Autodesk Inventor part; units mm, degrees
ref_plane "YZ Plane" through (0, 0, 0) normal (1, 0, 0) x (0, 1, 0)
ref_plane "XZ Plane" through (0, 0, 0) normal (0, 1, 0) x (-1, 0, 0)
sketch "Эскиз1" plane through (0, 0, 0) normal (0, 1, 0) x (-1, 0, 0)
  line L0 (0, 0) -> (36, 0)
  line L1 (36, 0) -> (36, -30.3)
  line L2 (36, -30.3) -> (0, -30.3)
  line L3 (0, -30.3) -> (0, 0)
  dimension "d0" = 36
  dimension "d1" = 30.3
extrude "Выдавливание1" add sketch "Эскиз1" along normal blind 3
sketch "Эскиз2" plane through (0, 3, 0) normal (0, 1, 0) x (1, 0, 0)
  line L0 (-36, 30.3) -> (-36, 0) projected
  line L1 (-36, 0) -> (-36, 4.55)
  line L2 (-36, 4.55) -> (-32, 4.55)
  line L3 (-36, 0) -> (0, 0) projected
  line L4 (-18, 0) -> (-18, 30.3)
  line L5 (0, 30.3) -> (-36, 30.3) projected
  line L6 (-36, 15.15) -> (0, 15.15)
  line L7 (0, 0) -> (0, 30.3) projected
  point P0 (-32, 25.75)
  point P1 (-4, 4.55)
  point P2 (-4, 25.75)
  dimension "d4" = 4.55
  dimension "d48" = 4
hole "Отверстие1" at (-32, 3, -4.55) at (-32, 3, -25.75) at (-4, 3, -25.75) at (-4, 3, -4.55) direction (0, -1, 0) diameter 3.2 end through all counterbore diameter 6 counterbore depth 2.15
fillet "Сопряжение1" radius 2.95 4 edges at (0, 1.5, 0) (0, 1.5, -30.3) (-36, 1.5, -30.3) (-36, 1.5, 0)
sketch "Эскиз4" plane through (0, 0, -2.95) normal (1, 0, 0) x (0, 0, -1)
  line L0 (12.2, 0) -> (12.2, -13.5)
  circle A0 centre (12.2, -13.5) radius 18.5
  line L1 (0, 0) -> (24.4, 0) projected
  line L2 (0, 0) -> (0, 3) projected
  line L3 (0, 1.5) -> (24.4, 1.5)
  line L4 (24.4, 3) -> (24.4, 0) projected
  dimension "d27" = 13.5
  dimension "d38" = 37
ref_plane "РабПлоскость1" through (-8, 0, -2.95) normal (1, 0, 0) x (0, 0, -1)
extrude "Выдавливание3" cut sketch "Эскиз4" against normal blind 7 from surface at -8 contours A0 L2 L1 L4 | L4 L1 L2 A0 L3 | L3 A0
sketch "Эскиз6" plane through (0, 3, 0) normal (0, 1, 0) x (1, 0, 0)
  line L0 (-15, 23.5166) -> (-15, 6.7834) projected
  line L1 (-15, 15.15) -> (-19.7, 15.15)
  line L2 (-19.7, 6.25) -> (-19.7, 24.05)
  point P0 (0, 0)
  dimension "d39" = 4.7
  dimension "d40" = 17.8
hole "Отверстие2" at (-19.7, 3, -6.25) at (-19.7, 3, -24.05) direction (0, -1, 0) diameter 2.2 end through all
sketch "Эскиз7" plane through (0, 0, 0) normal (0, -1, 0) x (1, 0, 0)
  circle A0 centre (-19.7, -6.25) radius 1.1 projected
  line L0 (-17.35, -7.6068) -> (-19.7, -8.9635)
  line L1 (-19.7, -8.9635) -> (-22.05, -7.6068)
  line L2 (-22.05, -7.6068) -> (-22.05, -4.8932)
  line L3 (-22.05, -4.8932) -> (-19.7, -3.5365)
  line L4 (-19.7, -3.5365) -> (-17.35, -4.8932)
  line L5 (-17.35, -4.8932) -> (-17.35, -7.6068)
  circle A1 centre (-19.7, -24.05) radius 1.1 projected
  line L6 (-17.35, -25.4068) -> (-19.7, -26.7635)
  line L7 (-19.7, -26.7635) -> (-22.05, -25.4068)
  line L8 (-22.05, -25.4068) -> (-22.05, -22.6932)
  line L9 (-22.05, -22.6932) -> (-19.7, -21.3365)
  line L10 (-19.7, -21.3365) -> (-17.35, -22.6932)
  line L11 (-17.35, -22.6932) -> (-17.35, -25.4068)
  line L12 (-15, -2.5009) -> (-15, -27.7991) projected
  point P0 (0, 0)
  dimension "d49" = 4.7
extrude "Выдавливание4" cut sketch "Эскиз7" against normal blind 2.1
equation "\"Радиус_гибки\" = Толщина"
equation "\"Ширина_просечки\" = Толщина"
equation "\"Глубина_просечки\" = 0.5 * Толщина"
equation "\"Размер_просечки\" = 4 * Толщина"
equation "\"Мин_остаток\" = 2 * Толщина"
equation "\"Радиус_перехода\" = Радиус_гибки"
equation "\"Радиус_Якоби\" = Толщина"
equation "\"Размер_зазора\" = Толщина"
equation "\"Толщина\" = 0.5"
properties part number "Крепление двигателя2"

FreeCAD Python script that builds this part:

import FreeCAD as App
import Part
import Sketcher
from FreeCAD import Vector


def edges_at(feature, points):
    """Names of the edges that pass closest to the given points."""
    edges = feature.Shape.Edges
    near = lambda p: min(range(len(edges)), key=lambda i: edges[i].distToShape(Part.Vertex(*p))[0])
    return sorted({f"Edge{near(p) + 1}" for p in points})


def add_polygon(sketch, points):
    """Adds a closed chain of lines whose ends are joined by coincident constraints."""
    first, n = sketch.GeometryCount, len(points)
    for a, b in zip(points, points[1:] + points[:1]):
        sketch.addGeometry(Part.LineSegment(App.Vector(*a, 0), App.Vector(*b, 0)), False)
    for i in range(n):
        sketch.addConstraint(Sketcher.Constraint("Coincident", first + i, 2, first + (i + 1) % n, 1))

doc = App.newDocument("Part")
body = doc.addObject("PartDesign::Body", "Body")

sketch1 = body.newObject("Sketcher::SketchObject", "Sketch")
sketch1.AttachmentSupport = (doc.getObject("XZ_Plane"), [""])
sketch1.MapMode = "FlatFace"
add_polygon(sketch1, [(-36, 0), (0, 0), (0, -30), (-36, -30)])
sketch1.addConstraint([
    Sketcher.Constraint("Horizontal", 0),
    Sketcher.Constraint("Vertical", 1),
    Sketcher.Constraint("Horizontal", 2),
    Sketcher.Constraint("Vertical", 3),
    Sketcher.Constraint("Coincident", 0, 2, -1, 1),
    Sketcher.Constraint("DistanceX", 0, 1, 0, 2, 36.0),
    Sketcher.Constraint("DistanceY", 1, 2, 1, 1, 30.3),
])
pad1 = body.newObject("PartDesign::Pad", "Pad")
pad1.Profile = sketch1
pad1.Length = 3
pad1.Reversed = True

sketch2 = body.newObject("Sketcher::SketchObject", "Sketch001")
sketch2.AttachmentSupport = (doc.getObject("XZ_Plane"), [""])
sketch2.MapMode = "FlatFace"
sketch2.AttachmentOffset = App.Placement(Vector(0, 0, -3), App.Rotation())
sketch2.addGeometry([
    Part.Circle(Vector(-32, -4.5, 0), Vector(0, 0, 1), 1.6),
    Part.Circle(Vector(-32, -25.8, 0), Vector(0, 0, 1), 1.6),
    Part.Circle(Vector(-4, -25.8, 0), Vector(0, 0, 1), 1.6),
    Part.Circle(Vector(-4, -4.5, 0), Vector(0, 0, 1), 1.6),
], False)
sketch2.addConstraint([
    Sketcher.Constraint("Equal", 0, 1),
    Sketcher.Constraint("Equal", 1, 2),
    Sketcher.Constraint("Equal", 2, 3),
    Sketcher.Constraint("Horizontal", 1, 3, 2, 3),
    Sketcher.Constraint("Horizontal", 0, 3, 3, 3),
    Sketcher.Constraint("Vertical", 0, 3, 1, 3),
    Sketcher.Constraint("Vertical", 2, 3, 3, 3),
    Sketcher.Constraint("Diameter", 0, 3.2),
    Sketcher.Constraint("DistanceX", 0, 3, -1, 1, 32.0),
    Sketcher.Constraint("DistanceX", 2, 3, -1, 1, 4.0),
    Sketcher.Constraint("DistanceY", 1, 3, 0, 3, 21.2),
    Sketcher.Constraint("DistanceY", 0, 3, -1, 1, 4.55),
])
doc.recompute()
hole = body.newObject("PartDesign::Hole", "Hole")
hole.Profile = sketch2
hole.ThreadType = "None"
hole.Diameter = 3.2
hole.DepthType = "ThroughAll"
hole.HoleCutType = "Counterbore"
hole.HoleCutDiameter = 6
hole.HoleCutDepth = 2.15
hole.Reversed = True
doc.recompute()

fillet = body.newObject("PartDesign::Fillet", "Fillet")
fillet.Base = (hole, edges_at(hole, [
    (0, 1.5, 0),
    (0, 1.5, -30.3),
    (-36, 1.5, -30.3),
    (-36, 1.5, 0),
]))
fillet.Radius = 2.95

sketch3 = body.newObject("Sketcher::SketchObject", "Sketch002")
sketch3.AttachmentSupport = (doc.getObject("YZ_Plane"), [""])
sketch3.MapMode = "FlatFace"
sketch3.AttachmentOffset = App.Placement(Vector(0, 0, -8), App.Rotation())
sketch3.addGeometry(Part.Circle(Vector(-14, -15, 0), Vector(0, 0, 1), 18), False)
sketch3.addConstraint([
    Sketcher.Constraint("Diameter", 0, 37.0),
    Sketcher.Constraint("DistanceX", 0, 3, -1, 1, 13.5),
    Sketcher.Constraint("DistanceY", 0, 3, -1, 1, 15.15),
])
pocket1 = body.newObject("PartDesign::Pocket", "Pocket")
pocket1.Profile = sketch3
pocket1.Length = 7

sketch4 = body.newObject("Sketcher::SketchObject", "Sketch003")
sketch4.AttachmentSupport = (doc.getObject("XZ_Plane"), [""])
sketch4.MapMode = "FlatFace"
sketch4.AttachmentOffset = App.Placement(Vector(0, 0, -3), App.Rotation())
sketch4.addGeometry([
    Part.Circle(Vector(-19.7, -6.2, 0), Vector(0, 0, 1), 1.1),
    Part.Circle(Vector(-19.7, -24.1, 0), Vector(0, 0, 1), 1.1),
], False)
sketch4.addConstraint([
    Sketcher.Constraint("Equal", 0, 1),
    Sketcher.Constraint("Vertical", 0, 3, 1, 3),
    Sketcher.Constraint("Diameter", 0, 2.2),
    Sketcher.Constraint("DistanceX", 0, 3, -1, 1, 19.7),
    Sketcher.Constraint("DistanceY", 1, 3, 0, 3, 17.8),
    Sketcher.Constraint("DistanceY", 0, 3, -1, 1, 6.25),
])
doc.recompute()
hole2 = body.newObject("PartDesign::Hole", "Hole001")
hole2.Profile = sketch4
hole2.ThreadType = "None"
hole2.Diameter = 2.2
hole2.DepthType = "ThroughAll"
hole2.Reversed = True

sketch5 = body.newObject("Sketcher::SketchObject", "Sketch004")
sketch5.AttachmentSupport = (doc.getObject("XZ_Plane"), [""])
sketch5.MapMode = "FlatFace"
add_polygon(sketch5, [(-19.7, -9), (-17.4, -7.6), (-17.4, -4.9), (-19.7, -3.5), (-22.1, -4.9), (-22.1, -7.6)])
sketch5.addGeometry(Part.Circle(Vector(-19.7, -6.2, 0), Vector(0, 0, 1), 1.1), False)
add_polygon(sketch5, [(-19.7, -26.8), (-17.4, -25.4), (-17.4, -22.7), (-19.7, -21.3), (-22.1, -22.7), (-22.1, -25.4)])
sketch5.addGeometry(Part.Circle(Vector(-19.7, -24.1, 0), Vector(0, 0, 1), 1.1), False)
sketch5.addConstraint([
    Sketcher.Constraint("Vertical", 1),
    Sketcher.Constraint("Vertical", 4),
    Sketcher.Constraint("Vertical", 8),
    Sketcher.Constraint("Vertical", 11),
    Sketcher.Constraint("Equal", 6, 13),
    Sketcher.Constraint("Parallel", 0, 3),
    Sketcher.Constraint("Parallel", 2, 5),
    Sketcher.Constraint("Parallel", 3, 7),
    Sketcher.Constraint("Parallel", 5, 9),
    Sketcher.Constraint("Parallel", 7, 10),
    Sketcher.Constraint("Parallel", 9, 12),
    Sketcher.Constraint("Horizontal", 1, 2, 3, 2),
    Sketcher.Constraint("Horizontal", 0, 2, 4, 2),
    Sketcher.Constraint("Horizontal", 8, 2, 10, 2),
    Sketcher.Constraint("Horizontal", 7, 2, 11, 2),
    Sketcher.Constraint("Vertical", 6, 3, 13, 3),
    Sketcher.Constraint("Vertical", 13, 3, 2, 2),
    Sketcher.Constraint("Vertical", 2, 2, 5, 2),
    Sketcher.Constraint("Vertical", 1, 2, 7, 2),
    Sketcher.Constraint("Vertical", 5, 2, 9, 2),
    Sketcher.Constraint("Equal", 4, 8),
    Sketcher.Constraint("Diameter", 6, 2.2),
    Sketcher.Constraint("DistanceX", 3, 2, 1, 2, 4.7),
    Sketcher.Constraint("DistanceX", 6, 3, -1, 1, 19.7),
    Sketcher.Constraint("DistanceY", 13, 3, 6, 3, 17.8),
    Sketcher.Constraint("DistanceY", 7, 2, 0, 2, 17.8),
    Sketcher.Constraint("DistanceY", 6, 3, -1, 1, 6.25),
    Sketcher.Constraint("DistanceY", 1, 1, 1, 2, 2.7136),
    Sketcher.Constraint("DistanceY", 9, 2, 5, 2, 12.373),
    Sketcher.Constraint("DistanceY", 0, 2, -1, 1, 7.6068),
])
pocket2 = body.newObject("PartDesign::Pocket", "Pocket001")
pocket2.Profile = sketch5
pocket2.Length = 2.1

doc.recompute()
